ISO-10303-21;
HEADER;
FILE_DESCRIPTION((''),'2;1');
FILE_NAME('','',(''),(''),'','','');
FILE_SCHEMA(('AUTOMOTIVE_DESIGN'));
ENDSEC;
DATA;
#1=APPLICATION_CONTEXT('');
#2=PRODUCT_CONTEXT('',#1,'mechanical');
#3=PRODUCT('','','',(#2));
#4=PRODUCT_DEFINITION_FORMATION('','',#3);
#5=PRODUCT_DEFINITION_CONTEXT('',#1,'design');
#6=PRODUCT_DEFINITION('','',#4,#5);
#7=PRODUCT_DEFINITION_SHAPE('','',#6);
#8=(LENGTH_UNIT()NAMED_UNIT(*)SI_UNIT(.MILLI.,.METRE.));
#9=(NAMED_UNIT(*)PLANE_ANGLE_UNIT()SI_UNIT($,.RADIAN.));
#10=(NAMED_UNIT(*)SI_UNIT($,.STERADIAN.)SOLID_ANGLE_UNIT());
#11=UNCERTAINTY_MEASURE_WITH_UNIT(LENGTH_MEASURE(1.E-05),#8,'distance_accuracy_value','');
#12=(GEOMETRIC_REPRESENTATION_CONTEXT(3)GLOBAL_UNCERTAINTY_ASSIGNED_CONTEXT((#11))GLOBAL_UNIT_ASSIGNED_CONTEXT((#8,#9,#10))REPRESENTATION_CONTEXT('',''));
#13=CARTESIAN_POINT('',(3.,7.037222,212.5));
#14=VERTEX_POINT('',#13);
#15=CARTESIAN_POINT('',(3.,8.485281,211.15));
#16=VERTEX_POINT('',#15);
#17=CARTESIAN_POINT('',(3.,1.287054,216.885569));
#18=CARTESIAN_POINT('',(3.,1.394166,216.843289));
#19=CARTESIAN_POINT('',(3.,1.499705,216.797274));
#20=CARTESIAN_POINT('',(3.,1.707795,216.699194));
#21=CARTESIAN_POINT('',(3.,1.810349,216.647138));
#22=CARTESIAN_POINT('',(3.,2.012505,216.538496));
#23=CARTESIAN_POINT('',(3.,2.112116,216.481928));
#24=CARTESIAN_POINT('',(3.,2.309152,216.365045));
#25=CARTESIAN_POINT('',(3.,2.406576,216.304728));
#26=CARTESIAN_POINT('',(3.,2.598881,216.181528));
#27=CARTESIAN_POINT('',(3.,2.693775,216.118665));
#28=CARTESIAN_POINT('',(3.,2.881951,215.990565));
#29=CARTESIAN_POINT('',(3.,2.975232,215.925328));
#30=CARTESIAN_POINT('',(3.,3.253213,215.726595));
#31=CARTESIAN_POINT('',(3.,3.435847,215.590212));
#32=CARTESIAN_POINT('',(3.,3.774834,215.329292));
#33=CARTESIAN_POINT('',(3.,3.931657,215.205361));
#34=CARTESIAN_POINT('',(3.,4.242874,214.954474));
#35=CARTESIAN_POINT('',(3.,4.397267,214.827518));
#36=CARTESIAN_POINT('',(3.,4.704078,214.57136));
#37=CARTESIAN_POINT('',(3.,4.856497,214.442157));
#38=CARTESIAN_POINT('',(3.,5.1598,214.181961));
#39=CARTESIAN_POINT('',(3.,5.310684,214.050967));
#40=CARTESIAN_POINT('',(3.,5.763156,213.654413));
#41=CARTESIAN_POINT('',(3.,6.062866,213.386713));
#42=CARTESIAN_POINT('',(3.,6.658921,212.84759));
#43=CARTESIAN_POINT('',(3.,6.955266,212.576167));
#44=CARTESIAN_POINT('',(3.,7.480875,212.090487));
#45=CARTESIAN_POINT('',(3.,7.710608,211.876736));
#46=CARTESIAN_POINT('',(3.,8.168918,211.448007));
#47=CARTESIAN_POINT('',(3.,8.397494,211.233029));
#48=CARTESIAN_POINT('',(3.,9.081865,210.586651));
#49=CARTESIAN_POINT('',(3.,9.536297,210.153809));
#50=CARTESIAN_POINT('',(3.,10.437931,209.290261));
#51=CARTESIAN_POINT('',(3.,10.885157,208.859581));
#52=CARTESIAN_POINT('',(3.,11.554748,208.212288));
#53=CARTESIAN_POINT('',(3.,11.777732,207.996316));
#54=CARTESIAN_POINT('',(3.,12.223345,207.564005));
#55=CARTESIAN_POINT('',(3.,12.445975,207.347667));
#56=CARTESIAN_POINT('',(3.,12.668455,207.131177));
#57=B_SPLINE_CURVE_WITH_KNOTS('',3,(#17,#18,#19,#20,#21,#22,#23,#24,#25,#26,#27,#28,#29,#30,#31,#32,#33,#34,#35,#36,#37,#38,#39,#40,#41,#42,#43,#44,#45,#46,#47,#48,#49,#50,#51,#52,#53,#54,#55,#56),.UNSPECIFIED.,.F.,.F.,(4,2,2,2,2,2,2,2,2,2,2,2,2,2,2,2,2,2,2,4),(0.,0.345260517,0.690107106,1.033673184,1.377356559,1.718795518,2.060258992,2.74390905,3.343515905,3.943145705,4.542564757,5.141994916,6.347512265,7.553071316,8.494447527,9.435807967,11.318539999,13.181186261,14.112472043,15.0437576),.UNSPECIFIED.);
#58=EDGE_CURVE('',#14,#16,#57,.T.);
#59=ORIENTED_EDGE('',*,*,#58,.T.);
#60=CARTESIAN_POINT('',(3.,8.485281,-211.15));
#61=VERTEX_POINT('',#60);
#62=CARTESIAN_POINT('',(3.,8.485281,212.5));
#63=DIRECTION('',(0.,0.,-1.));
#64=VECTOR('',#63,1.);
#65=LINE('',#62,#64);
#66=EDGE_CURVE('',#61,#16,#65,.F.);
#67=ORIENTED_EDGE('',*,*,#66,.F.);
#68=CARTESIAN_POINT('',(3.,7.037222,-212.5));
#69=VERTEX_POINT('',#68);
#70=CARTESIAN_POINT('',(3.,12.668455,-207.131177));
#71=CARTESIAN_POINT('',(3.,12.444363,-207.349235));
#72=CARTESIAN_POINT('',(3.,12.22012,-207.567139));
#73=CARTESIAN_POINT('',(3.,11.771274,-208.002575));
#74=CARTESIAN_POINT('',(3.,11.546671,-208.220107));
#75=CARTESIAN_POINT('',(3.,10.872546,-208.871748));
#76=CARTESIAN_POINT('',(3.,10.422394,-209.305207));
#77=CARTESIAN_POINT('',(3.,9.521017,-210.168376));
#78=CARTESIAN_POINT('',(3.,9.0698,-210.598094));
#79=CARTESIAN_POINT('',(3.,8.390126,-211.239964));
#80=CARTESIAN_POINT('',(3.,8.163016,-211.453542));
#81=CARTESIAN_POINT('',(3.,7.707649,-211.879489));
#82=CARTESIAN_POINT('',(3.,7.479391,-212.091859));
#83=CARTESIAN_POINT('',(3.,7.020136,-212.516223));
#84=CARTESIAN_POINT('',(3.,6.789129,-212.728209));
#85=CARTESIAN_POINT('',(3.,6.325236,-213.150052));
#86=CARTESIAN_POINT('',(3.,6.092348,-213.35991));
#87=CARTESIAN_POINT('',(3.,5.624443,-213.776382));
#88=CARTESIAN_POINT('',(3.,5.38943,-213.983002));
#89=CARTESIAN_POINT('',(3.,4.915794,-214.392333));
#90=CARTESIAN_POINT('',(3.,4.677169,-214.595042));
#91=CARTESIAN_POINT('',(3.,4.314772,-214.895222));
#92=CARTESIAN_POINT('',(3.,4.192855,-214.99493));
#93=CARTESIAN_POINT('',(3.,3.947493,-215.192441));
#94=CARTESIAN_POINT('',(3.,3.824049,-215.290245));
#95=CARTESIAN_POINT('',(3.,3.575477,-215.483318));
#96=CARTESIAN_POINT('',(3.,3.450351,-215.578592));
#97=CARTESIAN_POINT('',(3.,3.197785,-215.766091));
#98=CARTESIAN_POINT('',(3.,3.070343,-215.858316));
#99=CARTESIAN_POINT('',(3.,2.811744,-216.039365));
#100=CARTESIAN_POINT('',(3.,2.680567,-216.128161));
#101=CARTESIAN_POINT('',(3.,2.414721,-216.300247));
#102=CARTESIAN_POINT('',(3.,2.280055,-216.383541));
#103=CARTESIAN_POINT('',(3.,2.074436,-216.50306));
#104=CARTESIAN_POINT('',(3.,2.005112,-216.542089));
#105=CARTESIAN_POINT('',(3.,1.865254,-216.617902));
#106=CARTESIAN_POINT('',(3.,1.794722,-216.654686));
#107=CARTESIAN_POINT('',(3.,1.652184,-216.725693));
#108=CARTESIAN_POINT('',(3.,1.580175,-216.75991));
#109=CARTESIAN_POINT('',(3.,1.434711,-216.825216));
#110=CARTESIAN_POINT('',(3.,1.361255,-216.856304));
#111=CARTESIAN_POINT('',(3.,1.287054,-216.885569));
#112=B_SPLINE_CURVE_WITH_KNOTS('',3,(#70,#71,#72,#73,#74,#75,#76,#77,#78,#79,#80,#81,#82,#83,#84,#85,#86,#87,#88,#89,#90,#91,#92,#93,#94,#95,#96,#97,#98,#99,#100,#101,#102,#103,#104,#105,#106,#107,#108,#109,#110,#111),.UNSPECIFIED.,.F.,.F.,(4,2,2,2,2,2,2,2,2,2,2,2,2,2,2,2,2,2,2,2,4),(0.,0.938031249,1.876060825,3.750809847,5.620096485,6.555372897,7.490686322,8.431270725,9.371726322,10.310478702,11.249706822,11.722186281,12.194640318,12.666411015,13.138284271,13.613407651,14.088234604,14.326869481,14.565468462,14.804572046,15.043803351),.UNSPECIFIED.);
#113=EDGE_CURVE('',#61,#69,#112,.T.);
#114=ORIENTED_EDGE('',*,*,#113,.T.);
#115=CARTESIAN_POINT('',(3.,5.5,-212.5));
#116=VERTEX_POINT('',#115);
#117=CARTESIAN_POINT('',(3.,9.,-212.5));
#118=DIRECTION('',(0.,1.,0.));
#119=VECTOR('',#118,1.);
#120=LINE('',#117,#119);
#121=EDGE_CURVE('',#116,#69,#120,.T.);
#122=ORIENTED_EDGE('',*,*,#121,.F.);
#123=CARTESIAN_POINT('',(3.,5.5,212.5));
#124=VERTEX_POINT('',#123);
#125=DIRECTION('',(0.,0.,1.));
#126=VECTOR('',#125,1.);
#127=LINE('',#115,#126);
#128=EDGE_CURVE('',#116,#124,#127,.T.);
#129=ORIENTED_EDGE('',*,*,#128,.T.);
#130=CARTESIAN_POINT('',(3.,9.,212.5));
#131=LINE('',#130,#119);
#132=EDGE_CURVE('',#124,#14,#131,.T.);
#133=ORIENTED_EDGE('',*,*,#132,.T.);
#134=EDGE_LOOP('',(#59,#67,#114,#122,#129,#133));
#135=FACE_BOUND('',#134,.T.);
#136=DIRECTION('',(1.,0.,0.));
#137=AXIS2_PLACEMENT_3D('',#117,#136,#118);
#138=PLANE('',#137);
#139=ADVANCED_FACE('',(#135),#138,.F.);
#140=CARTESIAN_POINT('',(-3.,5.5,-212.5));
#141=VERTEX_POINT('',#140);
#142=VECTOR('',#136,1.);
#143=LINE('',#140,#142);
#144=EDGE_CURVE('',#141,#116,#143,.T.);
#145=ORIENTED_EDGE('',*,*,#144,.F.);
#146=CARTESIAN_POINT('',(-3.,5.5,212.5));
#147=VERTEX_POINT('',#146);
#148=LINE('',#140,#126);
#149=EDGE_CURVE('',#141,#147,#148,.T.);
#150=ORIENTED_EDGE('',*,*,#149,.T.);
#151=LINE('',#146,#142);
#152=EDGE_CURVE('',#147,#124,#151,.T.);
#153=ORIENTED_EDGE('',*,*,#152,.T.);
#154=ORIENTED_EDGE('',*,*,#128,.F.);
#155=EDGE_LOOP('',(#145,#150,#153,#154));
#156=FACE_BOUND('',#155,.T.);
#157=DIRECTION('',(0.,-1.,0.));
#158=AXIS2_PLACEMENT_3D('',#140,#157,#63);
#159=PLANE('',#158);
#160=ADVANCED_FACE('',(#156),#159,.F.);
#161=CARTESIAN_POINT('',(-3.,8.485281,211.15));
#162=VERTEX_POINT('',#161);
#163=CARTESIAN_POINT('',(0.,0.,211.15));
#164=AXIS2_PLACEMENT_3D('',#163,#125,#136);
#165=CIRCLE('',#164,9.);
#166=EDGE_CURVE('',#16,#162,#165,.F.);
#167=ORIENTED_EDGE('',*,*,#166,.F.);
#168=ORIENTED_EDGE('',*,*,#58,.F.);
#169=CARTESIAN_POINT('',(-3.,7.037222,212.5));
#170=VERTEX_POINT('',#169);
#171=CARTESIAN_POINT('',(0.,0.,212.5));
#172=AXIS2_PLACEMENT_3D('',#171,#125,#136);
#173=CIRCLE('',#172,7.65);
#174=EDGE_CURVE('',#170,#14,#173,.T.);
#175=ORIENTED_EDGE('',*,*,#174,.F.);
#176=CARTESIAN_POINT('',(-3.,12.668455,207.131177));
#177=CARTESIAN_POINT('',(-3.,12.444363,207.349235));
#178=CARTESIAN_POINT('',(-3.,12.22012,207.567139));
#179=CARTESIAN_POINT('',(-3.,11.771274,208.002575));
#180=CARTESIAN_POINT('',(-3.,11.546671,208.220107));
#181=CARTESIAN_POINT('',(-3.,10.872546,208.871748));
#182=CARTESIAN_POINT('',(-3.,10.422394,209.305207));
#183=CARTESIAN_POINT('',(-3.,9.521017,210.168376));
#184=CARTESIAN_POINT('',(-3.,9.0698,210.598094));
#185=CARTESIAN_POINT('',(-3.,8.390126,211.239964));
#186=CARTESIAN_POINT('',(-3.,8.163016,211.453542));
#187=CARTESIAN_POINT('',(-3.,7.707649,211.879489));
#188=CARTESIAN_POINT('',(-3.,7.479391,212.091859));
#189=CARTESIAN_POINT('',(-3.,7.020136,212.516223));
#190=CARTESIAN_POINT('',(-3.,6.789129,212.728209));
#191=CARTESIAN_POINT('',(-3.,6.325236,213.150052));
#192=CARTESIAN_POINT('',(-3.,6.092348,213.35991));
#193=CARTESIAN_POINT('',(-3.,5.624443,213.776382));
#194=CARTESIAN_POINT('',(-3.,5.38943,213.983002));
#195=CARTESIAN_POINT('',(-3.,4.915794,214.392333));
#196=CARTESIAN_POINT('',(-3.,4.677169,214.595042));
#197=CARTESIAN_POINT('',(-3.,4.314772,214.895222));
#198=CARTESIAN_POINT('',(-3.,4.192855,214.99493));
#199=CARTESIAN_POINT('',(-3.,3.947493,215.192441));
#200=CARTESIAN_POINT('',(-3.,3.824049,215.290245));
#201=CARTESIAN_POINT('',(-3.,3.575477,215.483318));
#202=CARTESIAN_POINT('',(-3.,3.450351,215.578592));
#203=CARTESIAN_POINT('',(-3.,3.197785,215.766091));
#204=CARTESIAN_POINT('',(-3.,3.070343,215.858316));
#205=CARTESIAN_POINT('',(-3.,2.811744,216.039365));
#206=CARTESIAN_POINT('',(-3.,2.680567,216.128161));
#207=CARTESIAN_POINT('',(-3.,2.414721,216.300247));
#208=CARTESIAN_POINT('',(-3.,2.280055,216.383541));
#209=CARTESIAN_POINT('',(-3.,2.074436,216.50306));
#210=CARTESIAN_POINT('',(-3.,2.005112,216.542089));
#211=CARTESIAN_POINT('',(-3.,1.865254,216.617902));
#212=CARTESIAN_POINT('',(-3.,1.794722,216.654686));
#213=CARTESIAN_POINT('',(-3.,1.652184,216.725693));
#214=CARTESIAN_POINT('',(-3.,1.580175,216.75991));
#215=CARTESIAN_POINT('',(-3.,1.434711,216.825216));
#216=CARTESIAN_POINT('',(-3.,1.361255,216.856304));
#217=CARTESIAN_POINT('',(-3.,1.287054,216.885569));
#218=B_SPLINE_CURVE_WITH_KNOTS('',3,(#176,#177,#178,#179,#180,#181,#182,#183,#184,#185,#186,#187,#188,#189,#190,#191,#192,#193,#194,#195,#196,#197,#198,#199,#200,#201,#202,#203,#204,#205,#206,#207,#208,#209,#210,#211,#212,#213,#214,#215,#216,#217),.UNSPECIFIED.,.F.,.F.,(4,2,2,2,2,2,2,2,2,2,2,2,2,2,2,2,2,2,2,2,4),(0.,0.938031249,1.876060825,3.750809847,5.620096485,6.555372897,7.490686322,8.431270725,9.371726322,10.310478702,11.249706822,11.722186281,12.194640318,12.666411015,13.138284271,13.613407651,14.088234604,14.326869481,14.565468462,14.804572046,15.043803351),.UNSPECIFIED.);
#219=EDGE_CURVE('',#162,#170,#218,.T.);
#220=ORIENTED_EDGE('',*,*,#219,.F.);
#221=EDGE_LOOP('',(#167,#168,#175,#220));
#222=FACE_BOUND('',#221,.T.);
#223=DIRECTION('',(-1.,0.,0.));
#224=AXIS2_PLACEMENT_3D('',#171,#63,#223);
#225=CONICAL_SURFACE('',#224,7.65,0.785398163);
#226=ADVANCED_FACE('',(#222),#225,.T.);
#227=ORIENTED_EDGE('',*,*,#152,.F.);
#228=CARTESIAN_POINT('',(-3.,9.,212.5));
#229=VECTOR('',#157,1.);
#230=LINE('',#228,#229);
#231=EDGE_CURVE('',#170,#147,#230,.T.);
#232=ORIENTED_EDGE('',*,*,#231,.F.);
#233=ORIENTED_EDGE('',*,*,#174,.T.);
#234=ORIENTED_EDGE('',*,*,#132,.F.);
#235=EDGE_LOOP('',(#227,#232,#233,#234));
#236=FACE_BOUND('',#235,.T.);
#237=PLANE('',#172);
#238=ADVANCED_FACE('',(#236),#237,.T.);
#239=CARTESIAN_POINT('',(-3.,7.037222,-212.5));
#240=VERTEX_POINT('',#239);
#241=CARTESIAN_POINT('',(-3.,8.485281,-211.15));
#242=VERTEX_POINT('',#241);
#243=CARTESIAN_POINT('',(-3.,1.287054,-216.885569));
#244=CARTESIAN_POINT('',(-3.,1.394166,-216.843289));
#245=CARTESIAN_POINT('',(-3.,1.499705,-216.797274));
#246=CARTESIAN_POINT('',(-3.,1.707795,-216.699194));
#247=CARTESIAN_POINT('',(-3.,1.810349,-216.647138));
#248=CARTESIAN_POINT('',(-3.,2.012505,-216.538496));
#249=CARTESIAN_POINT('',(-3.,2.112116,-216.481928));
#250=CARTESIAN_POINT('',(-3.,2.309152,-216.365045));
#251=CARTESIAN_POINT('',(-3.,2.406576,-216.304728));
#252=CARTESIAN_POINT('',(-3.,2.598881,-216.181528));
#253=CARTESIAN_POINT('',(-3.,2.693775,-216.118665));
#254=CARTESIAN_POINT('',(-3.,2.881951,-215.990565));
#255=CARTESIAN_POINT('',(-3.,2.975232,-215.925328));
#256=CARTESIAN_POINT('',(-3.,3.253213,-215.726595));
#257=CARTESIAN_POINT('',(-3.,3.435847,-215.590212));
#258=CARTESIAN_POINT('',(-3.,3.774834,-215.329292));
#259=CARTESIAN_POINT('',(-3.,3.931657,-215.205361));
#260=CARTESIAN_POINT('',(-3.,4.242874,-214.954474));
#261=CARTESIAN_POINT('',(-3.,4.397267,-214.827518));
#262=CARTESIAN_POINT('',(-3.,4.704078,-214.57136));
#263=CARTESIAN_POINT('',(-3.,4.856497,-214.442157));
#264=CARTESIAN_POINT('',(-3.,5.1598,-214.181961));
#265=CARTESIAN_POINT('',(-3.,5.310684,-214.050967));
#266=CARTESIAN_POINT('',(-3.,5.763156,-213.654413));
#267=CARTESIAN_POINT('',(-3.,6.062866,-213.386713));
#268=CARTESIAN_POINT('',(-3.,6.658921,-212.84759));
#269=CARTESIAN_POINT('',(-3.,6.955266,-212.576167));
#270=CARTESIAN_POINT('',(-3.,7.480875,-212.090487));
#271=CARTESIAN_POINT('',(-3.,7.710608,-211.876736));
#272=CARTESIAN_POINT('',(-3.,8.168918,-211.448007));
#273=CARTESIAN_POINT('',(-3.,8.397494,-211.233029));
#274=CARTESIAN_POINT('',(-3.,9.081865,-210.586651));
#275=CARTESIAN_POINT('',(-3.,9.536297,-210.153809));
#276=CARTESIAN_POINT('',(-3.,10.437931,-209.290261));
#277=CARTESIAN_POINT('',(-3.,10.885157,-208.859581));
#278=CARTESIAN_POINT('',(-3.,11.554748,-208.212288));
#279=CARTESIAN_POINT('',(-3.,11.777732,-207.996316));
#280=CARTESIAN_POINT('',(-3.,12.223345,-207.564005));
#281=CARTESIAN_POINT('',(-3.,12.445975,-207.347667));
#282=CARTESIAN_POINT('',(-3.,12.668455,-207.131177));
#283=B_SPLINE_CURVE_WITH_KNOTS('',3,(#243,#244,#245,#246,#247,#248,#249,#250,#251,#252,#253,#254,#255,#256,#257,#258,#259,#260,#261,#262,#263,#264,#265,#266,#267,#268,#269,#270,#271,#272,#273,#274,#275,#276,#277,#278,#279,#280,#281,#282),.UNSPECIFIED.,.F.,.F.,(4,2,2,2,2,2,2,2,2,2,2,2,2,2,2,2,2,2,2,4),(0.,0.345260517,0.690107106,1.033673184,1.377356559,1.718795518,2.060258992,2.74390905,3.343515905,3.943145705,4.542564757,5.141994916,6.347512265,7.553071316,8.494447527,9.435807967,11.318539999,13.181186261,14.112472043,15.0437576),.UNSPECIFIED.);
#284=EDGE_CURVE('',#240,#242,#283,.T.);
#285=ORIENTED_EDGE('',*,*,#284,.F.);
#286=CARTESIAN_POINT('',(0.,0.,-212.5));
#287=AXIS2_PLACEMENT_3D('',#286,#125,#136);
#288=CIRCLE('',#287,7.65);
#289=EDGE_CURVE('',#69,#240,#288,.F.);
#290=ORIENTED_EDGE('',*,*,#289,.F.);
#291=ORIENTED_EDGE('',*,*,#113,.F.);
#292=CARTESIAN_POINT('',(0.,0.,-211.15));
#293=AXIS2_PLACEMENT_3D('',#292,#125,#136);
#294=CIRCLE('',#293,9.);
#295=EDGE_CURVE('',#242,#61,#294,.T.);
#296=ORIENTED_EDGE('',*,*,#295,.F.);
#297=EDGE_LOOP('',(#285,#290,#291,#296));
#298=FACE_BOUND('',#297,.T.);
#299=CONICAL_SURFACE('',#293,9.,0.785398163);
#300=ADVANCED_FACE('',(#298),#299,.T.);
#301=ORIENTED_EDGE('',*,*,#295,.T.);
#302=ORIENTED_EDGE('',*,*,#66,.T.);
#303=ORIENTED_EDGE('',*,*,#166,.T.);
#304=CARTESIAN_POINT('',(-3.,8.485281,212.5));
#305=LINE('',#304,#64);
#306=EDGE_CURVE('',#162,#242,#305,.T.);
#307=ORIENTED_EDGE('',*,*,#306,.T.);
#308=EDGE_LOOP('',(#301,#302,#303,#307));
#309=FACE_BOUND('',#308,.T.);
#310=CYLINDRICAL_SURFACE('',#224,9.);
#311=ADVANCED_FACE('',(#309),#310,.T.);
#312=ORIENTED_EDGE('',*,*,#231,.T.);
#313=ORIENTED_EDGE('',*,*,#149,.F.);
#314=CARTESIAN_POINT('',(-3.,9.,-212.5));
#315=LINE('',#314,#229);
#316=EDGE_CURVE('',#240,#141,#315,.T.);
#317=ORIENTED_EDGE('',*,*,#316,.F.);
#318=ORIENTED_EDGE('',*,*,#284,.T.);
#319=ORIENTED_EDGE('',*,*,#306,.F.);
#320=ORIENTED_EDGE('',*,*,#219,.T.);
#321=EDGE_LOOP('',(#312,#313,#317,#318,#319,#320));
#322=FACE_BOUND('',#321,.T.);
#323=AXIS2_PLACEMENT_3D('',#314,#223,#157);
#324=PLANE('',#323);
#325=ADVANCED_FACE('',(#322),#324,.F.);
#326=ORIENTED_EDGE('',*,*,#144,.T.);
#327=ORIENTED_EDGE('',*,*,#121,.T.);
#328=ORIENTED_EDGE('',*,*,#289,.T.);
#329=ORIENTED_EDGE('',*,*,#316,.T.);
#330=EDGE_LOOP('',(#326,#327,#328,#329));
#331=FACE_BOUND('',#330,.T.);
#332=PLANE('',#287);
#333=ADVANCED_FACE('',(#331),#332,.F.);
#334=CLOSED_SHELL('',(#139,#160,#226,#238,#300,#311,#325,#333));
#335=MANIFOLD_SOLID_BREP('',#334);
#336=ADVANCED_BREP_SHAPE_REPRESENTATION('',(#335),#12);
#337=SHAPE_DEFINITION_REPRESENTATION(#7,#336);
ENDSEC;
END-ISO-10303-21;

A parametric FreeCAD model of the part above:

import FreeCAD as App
import Part
import Sketcher
Q = App.Units.Quantity


def edges_at(feature, points):
    """Names of the edges that pass closest to the given points."""
    edges = feature.Shape.Edges
    near = lambda p: min(range(len(edges)), key=lambda i: edges[i].distToShape(Part.Vertex(*p))[0])
    return sorted({f"Edge{near(p) + 1}" for p in points})


def add_polygon(sketch, points):
    """Adds a closed chain of lines whose ends are joined by coincident constraints."""
    first, n = sketch.GeometryCount, len(points)
    for a, b in zip(points, points[1:] + points[:1]):
        sketch.addGeometry(Part.LineSegment(App.Vector(*a, 0), App.Vector(*b, 0)), False)
    for i in range(n):
        sketch.addConstraint(Sketcher.Constraint("Coincident", first + i, 2, first + (i + 1) % n, 1))

doc = App.newDocument("Part")
body = doc.addObject("PartDesign::Body", "Body")

# Sketch on XY plane
sketch1 = body.newObject("Sketcher::SketchObject", "Sketch")
sketch1.AttachmentSupport = (doc.getObject("XY_Plane"), [""])
sketch1.MapMode = "FlatFace"
sketch1.addGeometry(Part.Circle(App.Vector(0, 0, 0), App.Vector(0, 0, 1), 9), False)
sketch1.addConstraint([
    Sketcher.Constraint("Coincident", 0, 3, -1, 1),
    Sketcher.Constraint("Diameter", 0, Q("18 mm")),
])
pad1 = body.newObject("PartDesign::Pad", "Pad")
pad1.Profile = sketch1
pad1.Length = 425
pad1.Midplane = True
doc.recompute()

chamfer = body.newObject("PartDesign::Chamfer", "Chamfer")
chamfer.Base = (pad1, edges_at(pad1, [(-9, 0, -212.5), (-9, 0, 212.5)]))
chamfer.Size = 1.35

# Sketch on XY plane
sketch2 = body.newObject("Sketcher::SketchObject", "Sketch001")
sketch2.AttachmentSupport = (doc.getObject("XY_Plane"), [""])
sketch2.MapMode = "FlatFace"
add_polygon(sketch2, [(-3, 9), (-3, 5.5), (3, 5.5), (3, 9)])  # lines 0-3
sketch2.addConstraint([
    Sketcher.Constraint("Vertical", 0),
    Sketcher.Constraint("Horizontal", 1),
    Sketcher.Constraint("Vertical", 2),
    Sketcher.Constraint("Horizontal", 3),
    Sketcher.Constraint("DistanceX", 1, 1, 1, 2, Q("6 mm")),
    Sketcher.Constraint("DistanceY", 0, 2, 0, 1, Q("3.5 mm")),
    Sketcher.Constraint("DistanceX", 0, 2, -1, 1, Q("3 mm")),
    Sketcher.Constraint("DistanceY", -1, 1, 2, 2, Q("9 mm")),
])
pocket1 = body.newObject("PartDesign::Pocket", "Pocket")
pocket1.Profile = sketch2
pocket1.Type = "ThroughAll"
pocket1.Midplane = True

doc.recompute()
